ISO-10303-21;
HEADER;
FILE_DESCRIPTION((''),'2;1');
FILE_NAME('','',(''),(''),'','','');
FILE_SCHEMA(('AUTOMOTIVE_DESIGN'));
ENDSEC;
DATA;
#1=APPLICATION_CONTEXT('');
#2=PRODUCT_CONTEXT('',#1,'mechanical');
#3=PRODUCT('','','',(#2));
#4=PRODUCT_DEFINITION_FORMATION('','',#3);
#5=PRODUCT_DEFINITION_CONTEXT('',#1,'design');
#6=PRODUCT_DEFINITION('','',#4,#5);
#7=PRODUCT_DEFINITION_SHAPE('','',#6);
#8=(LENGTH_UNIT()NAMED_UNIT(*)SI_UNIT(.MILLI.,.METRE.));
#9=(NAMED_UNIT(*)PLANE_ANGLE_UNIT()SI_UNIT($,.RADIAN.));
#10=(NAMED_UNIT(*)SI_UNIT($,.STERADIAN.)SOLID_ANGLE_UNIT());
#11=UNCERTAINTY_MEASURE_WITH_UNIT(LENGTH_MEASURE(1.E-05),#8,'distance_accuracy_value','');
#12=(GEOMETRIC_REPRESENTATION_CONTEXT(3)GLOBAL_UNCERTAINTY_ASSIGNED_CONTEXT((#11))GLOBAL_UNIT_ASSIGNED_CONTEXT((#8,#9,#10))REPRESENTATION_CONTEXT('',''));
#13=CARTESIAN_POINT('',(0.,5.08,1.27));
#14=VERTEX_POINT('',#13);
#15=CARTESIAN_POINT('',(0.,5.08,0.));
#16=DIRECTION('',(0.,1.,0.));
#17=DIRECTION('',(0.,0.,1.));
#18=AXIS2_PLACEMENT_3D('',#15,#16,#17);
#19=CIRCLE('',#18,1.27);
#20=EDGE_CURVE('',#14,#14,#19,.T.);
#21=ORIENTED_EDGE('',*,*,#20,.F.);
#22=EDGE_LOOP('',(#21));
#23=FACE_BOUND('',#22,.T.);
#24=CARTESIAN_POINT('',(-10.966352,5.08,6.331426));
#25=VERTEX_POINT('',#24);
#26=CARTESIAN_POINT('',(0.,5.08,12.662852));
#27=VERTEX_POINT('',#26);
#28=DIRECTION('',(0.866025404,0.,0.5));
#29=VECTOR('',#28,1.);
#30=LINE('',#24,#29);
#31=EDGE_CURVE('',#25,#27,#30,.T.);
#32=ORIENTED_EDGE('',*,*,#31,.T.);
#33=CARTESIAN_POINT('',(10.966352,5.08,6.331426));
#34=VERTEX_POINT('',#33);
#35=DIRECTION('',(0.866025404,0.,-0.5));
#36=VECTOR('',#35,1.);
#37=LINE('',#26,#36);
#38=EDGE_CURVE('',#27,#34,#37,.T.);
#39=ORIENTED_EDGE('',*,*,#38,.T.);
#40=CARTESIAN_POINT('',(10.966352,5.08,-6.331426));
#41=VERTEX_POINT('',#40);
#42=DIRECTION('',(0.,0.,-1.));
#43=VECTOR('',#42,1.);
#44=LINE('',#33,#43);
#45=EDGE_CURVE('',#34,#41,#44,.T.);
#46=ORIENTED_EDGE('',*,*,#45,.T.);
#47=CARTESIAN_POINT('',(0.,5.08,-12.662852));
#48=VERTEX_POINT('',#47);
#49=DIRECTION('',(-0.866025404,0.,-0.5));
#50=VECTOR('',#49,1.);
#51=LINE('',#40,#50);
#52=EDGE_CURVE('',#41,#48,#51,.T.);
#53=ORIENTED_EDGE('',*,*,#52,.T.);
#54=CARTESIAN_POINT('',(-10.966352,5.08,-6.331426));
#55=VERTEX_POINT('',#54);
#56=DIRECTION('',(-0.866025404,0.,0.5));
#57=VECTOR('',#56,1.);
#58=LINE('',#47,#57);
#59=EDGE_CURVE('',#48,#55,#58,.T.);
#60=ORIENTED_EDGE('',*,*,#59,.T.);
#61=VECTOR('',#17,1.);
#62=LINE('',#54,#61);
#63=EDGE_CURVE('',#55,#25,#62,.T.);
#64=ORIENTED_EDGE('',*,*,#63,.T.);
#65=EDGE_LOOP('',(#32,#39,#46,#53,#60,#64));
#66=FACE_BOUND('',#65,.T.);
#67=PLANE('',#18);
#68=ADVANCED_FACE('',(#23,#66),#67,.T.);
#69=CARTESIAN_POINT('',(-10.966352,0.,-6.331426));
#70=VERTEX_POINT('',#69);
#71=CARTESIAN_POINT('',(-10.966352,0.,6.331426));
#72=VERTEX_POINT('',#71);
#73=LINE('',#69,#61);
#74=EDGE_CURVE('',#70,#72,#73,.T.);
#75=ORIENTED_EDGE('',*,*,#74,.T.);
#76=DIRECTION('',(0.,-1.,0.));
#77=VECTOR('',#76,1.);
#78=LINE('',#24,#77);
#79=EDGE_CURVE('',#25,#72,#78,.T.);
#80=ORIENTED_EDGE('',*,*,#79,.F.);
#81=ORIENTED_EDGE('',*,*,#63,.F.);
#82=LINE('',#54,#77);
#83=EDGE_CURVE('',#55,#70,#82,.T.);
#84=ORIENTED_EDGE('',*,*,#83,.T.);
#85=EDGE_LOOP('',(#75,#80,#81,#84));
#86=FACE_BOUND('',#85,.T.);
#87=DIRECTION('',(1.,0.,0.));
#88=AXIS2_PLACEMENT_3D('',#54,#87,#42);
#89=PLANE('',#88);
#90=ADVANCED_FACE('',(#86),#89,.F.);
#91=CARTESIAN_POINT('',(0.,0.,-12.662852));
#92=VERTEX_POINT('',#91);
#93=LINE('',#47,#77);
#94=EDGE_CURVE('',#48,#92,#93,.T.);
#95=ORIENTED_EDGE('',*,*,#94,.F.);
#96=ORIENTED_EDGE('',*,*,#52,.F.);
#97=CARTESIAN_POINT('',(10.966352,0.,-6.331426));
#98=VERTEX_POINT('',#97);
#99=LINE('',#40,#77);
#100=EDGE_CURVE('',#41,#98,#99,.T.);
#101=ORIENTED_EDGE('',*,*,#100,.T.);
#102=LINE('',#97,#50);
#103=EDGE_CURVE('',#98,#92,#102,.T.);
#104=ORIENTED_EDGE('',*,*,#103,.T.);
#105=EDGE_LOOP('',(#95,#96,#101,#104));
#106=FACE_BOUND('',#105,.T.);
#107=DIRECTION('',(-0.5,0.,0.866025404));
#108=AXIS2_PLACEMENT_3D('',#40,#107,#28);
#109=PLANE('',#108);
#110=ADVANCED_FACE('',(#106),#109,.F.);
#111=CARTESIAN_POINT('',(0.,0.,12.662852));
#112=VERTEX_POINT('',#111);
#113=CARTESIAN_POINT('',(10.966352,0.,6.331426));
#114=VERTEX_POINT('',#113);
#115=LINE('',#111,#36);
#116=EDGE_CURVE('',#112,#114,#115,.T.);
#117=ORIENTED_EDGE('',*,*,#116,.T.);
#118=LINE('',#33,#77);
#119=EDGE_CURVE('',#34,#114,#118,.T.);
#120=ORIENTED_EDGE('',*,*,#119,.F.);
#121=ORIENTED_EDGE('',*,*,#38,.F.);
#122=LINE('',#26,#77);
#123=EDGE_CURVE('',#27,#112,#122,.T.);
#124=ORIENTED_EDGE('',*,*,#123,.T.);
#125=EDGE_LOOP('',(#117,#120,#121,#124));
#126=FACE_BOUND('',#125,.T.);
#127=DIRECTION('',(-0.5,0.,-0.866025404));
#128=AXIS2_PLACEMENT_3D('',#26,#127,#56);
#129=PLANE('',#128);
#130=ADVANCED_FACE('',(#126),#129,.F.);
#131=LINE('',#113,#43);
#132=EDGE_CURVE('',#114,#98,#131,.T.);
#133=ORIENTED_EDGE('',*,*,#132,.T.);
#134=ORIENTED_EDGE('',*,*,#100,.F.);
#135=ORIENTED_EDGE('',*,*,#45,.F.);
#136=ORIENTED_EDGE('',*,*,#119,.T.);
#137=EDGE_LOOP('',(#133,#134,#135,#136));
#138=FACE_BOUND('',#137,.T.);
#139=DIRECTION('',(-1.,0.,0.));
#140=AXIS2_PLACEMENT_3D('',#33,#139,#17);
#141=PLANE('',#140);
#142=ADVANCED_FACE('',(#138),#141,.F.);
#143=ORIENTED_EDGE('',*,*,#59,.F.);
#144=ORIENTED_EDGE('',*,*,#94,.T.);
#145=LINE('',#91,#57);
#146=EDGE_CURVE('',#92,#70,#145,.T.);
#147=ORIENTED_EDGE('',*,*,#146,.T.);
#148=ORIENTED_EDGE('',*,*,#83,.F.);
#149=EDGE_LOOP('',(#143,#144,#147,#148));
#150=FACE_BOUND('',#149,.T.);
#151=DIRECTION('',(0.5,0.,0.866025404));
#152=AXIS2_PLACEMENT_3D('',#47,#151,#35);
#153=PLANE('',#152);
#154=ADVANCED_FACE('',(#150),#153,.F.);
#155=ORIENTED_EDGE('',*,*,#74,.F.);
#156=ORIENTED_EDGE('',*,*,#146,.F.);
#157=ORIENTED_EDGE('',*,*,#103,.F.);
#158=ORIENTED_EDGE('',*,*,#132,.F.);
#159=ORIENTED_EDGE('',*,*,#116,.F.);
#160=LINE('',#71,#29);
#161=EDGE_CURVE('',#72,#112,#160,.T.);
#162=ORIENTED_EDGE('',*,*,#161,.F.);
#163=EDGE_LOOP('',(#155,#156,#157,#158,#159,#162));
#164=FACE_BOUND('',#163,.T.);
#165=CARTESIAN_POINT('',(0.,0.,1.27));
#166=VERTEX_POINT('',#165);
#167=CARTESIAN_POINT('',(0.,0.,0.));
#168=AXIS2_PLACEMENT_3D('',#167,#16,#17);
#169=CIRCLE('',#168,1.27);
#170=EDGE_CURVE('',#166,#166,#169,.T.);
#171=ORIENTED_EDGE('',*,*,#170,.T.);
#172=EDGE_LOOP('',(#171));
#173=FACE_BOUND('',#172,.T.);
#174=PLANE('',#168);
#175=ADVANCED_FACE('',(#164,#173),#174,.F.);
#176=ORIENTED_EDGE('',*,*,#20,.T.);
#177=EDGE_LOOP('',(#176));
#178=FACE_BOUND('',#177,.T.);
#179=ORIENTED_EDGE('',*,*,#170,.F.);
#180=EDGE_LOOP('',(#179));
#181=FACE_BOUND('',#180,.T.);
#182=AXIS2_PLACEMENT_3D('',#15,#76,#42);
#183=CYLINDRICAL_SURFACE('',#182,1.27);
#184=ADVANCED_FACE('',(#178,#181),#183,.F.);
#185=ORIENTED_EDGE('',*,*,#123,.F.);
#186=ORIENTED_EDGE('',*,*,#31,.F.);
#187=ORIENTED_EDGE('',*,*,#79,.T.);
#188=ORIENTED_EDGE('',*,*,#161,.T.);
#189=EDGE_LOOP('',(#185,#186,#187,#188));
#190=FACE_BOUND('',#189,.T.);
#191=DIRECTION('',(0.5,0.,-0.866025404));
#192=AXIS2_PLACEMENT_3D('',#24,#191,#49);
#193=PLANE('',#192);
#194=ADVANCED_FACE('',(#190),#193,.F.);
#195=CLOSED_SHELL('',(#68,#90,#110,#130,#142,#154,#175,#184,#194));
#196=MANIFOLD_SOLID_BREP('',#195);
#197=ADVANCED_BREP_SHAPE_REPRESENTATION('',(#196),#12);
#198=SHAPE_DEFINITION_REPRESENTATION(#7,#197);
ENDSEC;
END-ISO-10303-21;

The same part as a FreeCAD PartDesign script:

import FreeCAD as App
import Part
import Sketcher
from FreeCAD import Vector
Q = App.Units.Quantity


def add_polygon(sketch, points):
    """Adds a closed chain of lines whose ends are joined by coincident constraints."""
    first, n = sketch.GeometryCount, len(points)
    for a, b in zip(points, points[1:] + points[:1]):
        sketch.addGeometry(Part.LineSegment(App.Vector(*a, 0), App.Vector(*b, 0)), False)
    for i in range(n):
        sketch.addConstraint(Sketcher.Constraint("Coincident", first + i, 2, first + (i + 1) % n, 1))

doc = App.newDocument("Part")
body = doc.addObject("PartDesign::Body", "Body")

# Sketch on XZ plane
sketch1 = body.newObject("Sketcher::SketchObject", "Sketch")
sketch1.AttachmentSupport = (doc.getObject("XZ_Plane"), [""])
sketch1.MapMode = "FlatFace"
add_polygon(sketch1, [(0, -12.662852), (-10.966352, -6.331426), (-10.966352, 6.331426), (0, 12.662852), (10.966352, 6.331426), (10.966352, -6.331426)])  # lines 0-5
sketch1.addGeometry(Part.Circle(Vector(0, 0, 0), Vector(0, 0, 1), 1.27), False)  # 6
sketch1.addConstraint([
    Sketcher.Constraint("Vertical", 1),
    Sketcher.Constraint("Vertical", 4),
    Sketcher.Constraint("Coincident", 6, 3, -1, 1),
    Sketcher.Constraint("Symmetric", 0, 2, 3, 2, -1, 1),
    Sketcher.Constraint("Symmetric", 2, 2, 5, 2, -1, 1),
    Sketcher.Constraint("PointOnObject", 2, 2, -2),
    Sketcher.Constraint("Parallel", 2, 5),
    Sketcher.Constraint("Horizontal", 1, 2, 3, 2),
    Sketcher.Constraint("Diameter", 6, Q("0.1 in")),
    Sketcher.Constraint("Angle", 0, Q("150 deg")),
    Sketcher.Constraint("DistanceY", 1, 1, 1, 2, Q("12.662852 mm")),
    Sketcher.Constraint("DistanceX", 0, 2, -1, 1, Q("10.966352 mm")),
])
pad1 = body.newObject("PartDesign::Pad", "Pad")
pad1.Profile = sketch1
pad1.Length = Q("0.2 in")
pad1.Reversed = True

doc.recompute()
